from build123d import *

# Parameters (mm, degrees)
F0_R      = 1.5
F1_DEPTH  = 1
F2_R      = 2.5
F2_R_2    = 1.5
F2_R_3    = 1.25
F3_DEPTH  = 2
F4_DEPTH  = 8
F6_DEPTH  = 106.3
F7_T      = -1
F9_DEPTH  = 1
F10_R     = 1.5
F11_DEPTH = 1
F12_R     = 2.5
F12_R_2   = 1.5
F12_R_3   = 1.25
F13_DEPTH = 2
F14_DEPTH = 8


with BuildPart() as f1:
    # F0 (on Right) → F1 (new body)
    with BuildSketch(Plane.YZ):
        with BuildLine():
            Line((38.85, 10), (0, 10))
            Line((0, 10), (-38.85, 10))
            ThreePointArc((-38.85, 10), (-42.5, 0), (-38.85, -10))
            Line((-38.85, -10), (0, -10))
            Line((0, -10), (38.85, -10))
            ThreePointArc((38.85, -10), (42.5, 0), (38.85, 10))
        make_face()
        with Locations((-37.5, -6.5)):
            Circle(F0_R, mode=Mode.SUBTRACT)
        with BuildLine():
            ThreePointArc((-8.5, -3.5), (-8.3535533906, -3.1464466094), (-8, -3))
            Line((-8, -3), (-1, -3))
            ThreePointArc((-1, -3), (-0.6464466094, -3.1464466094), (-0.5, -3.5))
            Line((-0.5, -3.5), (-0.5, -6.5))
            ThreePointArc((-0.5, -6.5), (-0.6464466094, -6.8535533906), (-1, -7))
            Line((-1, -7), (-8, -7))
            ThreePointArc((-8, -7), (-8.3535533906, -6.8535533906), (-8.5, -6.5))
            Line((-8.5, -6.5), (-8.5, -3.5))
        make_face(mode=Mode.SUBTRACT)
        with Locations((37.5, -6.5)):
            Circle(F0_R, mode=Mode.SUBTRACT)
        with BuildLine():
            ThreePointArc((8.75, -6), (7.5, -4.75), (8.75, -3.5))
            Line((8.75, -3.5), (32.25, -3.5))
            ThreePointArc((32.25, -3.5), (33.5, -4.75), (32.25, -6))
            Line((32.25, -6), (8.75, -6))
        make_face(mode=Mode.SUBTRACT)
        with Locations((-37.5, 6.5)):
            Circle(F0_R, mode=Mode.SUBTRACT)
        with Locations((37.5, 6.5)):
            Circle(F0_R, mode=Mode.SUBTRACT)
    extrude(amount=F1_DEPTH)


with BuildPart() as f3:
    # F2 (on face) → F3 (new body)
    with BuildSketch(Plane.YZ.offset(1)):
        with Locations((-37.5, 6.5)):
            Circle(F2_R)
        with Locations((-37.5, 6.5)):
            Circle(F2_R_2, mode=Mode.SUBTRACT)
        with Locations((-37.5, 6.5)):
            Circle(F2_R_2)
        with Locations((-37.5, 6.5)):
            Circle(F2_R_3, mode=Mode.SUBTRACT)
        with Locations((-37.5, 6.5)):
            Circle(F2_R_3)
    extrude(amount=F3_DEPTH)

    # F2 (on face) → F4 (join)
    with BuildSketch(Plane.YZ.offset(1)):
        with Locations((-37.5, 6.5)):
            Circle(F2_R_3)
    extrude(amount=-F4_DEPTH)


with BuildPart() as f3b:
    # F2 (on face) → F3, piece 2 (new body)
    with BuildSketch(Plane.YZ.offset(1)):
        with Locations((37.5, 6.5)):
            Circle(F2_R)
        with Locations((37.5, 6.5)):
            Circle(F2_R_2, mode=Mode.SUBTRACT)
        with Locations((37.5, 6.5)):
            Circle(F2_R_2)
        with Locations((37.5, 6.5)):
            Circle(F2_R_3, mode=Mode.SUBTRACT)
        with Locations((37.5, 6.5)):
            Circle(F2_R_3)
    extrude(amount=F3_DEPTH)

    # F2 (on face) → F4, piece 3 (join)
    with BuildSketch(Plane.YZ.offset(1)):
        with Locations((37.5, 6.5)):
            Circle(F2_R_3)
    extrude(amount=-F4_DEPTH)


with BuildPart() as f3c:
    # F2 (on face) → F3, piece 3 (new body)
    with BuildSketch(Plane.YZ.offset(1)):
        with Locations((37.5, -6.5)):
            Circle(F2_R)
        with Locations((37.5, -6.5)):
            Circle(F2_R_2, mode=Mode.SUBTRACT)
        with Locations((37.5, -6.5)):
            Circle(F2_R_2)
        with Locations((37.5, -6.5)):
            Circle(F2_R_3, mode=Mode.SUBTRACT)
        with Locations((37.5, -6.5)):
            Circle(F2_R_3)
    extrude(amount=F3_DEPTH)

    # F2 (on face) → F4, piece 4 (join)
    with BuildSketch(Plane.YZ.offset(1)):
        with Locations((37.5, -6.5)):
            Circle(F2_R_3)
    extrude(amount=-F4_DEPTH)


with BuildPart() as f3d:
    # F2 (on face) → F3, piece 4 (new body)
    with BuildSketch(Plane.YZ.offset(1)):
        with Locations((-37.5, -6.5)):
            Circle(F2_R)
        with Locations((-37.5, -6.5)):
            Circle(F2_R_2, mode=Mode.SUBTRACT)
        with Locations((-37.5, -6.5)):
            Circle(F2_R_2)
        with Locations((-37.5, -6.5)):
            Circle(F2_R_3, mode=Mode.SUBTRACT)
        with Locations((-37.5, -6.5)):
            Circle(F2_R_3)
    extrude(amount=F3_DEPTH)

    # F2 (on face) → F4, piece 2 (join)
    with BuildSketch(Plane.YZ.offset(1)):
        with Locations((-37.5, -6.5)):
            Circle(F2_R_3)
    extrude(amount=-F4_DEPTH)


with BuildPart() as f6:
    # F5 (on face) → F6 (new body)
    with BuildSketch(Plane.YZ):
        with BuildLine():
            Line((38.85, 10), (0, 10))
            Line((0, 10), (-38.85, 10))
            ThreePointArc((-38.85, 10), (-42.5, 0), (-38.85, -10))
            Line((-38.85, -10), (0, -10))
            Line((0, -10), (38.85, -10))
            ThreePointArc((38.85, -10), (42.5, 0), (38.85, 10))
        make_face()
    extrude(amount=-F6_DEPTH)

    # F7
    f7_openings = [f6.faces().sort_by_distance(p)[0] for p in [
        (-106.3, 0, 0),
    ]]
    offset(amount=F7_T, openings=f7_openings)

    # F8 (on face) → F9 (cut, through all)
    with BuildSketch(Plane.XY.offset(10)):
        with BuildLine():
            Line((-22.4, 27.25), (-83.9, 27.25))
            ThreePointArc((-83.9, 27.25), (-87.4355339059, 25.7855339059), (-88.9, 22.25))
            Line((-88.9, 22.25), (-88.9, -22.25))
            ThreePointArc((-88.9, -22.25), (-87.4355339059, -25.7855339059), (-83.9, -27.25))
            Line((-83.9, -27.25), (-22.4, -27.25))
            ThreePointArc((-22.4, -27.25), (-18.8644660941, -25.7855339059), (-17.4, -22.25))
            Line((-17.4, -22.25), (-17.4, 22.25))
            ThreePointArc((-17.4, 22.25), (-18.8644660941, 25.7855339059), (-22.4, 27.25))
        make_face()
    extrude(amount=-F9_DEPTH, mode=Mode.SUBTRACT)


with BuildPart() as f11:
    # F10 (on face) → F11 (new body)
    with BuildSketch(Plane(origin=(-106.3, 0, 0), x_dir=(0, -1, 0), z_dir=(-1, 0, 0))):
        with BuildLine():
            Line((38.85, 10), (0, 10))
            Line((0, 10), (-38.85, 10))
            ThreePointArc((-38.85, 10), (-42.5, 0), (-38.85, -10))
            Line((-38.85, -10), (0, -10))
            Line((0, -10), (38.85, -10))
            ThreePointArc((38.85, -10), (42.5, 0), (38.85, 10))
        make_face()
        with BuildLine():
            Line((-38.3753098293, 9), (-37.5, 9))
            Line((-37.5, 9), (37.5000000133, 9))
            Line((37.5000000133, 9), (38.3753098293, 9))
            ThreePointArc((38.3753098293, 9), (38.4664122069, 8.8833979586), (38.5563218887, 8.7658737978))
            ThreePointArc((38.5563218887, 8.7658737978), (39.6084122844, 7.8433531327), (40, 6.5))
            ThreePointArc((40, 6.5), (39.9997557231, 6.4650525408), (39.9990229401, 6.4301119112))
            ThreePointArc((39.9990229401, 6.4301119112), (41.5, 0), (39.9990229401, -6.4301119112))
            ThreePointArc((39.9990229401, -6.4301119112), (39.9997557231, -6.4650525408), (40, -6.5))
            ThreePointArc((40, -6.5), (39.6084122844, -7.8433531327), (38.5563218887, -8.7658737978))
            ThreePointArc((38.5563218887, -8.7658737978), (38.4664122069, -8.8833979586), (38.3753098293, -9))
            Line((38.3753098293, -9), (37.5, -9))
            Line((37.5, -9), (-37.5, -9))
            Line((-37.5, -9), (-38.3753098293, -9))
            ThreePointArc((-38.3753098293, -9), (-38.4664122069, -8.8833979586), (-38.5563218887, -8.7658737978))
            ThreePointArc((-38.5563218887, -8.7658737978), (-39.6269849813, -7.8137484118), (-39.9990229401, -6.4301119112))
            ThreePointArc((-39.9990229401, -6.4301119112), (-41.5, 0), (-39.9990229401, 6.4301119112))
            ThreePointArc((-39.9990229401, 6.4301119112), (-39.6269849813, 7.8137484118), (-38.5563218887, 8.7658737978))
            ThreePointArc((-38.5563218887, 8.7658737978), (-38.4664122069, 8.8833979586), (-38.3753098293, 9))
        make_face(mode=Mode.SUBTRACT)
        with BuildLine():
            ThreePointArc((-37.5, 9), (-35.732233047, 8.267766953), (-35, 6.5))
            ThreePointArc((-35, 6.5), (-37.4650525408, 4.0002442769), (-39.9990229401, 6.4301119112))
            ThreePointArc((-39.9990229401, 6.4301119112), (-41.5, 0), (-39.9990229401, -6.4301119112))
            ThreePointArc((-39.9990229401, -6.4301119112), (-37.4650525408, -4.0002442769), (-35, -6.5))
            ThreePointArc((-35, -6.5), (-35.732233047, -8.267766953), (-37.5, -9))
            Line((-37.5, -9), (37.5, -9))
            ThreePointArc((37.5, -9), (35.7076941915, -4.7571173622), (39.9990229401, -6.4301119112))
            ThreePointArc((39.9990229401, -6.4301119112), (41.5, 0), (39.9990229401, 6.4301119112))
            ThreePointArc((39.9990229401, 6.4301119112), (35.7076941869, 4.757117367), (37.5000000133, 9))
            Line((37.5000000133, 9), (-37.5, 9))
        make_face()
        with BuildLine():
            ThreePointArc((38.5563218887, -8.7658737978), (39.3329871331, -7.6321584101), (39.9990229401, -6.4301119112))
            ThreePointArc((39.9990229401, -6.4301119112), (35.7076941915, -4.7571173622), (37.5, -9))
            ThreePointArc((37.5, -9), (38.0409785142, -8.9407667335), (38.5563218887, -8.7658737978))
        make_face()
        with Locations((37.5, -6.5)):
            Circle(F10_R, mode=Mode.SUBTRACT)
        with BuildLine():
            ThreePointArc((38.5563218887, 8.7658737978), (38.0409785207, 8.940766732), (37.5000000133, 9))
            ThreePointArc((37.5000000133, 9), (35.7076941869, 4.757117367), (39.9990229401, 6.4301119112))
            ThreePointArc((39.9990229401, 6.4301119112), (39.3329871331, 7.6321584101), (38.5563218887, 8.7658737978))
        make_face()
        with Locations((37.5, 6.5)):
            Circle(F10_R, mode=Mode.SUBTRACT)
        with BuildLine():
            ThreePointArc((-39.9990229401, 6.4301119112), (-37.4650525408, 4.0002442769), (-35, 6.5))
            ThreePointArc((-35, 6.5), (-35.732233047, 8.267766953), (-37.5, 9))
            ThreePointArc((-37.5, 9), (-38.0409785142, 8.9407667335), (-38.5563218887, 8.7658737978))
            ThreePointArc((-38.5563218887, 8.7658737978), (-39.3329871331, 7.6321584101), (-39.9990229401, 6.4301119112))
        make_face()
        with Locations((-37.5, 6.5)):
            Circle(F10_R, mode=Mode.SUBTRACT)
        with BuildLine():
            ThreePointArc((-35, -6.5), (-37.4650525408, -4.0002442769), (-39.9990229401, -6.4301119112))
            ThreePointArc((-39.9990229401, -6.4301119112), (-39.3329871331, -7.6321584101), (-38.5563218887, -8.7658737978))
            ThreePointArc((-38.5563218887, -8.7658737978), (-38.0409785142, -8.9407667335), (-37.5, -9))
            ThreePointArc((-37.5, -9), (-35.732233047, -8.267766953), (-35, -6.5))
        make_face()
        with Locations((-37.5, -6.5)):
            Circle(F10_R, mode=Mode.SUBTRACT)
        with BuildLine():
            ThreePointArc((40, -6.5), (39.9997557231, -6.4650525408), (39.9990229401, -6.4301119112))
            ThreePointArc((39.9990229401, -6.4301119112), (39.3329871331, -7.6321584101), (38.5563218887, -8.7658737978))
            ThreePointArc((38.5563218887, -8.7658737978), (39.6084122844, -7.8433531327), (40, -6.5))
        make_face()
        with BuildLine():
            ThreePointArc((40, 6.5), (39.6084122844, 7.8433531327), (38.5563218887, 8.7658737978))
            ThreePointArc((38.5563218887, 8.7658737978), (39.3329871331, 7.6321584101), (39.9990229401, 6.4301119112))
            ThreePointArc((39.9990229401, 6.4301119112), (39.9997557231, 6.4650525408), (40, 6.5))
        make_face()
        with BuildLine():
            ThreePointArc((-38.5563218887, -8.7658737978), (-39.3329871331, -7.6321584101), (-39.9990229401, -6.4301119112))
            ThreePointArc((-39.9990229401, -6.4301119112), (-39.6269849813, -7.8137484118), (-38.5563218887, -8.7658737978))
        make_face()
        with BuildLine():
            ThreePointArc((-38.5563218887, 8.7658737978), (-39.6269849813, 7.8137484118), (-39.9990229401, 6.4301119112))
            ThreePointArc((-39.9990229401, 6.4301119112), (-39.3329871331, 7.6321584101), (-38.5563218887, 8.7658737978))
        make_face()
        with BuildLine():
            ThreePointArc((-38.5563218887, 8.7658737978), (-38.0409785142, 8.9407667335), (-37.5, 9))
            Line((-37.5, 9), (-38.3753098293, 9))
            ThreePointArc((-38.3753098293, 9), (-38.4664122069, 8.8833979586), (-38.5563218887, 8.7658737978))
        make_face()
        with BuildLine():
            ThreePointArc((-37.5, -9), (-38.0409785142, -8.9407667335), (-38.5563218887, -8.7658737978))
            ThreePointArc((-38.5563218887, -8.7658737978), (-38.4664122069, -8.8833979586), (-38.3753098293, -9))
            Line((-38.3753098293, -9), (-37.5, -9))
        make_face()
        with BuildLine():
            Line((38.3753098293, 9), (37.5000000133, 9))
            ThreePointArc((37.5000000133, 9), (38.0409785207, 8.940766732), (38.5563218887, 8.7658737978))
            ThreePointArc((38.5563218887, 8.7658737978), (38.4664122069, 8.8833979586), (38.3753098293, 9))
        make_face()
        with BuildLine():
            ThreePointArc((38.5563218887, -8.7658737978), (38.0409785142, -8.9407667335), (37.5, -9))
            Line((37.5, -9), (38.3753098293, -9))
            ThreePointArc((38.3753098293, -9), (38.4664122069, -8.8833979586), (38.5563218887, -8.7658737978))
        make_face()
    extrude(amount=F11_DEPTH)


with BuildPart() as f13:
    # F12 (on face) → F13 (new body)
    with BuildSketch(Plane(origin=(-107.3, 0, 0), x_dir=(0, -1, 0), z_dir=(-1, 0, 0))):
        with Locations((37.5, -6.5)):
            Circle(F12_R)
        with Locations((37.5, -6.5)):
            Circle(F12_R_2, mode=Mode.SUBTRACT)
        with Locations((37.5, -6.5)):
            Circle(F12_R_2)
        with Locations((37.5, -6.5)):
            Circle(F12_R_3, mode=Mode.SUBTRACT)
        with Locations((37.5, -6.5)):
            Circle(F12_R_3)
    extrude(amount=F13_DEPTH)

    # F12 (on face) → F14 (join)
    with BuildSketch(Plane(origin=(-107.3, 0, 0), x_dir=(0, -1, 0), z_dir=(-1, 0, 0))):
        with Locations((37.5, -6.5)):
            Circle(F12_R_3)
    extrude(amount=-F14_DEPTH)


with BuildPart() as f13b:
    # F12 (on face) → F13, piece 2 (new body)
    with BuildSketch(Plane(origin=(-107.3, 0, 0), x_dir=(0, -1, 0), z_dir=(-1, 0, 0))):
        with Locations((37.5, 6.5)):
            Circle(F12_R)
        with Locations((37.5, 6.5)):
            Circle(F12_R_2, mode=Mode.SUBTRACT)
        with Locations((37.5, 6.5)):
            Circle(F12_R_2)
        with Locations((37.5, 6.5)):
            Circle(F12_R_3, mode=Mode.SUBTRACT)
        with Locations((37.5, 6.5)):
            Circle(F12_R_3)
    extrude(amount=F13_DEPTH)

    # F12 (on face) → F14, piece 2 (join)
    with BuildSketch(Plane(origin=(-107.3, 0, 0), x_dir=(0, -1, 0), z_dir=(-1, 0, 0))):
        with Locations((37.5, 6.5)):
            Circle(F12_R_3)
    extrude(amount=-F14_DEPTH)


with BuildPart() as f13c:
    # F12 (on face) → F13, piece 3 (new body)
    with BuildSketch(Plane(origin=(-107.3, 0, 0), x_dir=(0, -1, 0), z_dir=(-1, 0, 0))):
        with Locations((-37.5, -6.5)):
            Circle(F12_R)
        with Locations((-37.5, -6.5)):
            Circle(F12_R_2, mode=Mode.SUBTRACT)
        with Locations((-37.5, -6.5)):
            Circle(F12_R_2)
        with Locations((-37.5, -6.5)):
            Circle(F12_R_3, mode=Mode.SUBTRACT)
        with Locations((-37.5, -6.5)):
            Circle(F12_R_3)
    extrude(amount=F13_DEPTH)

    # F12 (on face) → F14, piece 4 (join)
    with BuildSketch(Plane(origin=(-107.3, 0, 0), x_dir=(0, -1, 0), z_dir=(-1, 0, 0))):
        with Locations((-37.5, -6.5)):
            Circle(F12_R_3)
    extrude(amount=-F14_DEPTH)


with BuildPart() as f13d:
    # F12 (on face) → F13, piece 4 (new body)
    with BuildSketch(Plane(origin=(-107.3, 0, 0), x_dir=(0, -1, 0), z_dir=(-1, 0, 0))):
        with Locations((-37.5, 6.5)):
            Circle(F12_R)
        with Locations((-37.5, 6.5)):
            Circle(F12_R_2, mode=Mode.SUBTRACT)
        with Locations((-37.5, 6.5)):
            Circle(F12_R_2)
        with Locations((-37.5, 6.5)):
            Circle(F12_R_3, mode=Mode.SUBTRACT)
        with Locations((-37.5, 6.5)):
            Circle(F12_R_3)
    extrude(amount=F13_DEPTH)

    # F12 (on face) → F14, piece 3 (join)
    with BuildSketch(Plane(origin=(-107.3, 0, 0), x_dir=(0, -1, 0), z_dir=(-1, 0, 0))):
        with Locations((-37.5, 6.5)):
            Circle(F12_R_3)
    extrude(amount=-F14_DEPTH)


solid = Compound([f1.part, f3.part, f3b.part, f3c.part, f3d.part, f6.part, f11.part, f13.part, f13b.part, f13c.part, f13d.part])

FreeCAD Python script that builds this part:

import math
import FreeCAD as App
import Part
import Sketcher
from FreeCAD import Vector
Q = App.Units.Quantity


def faces_at(feature, points):
    """Names of the faces that lie closest to the given points."""
    faces = feature.Shape.Faces
    near = lambda p: min(range(len(faces)), key=lambda i: faces[i].distToShape(Part.Vertex(*p))[0])
    return sorted({f"Face{near(p) + 1}" for p in points})

doc = App.newDocument("Part")
body = doc.addObject("PartDesign::Body", "Body")

# Sketch on YZ plane
sketch1 = doc.addObject("Sketcher::SketchObject", "Sketch")
body.addObject(sketch1)
sketch1.AttachmentSupport = (doc.YZ_Plane, [""])
sketch1.MapMode = "FlatFace"
sketch1.addGeometry([
    Part.LineSegment(Vector(38.85, 10, 0), Vector(-38.85, 10, 0)),  # 0
    Part.ArcOfCircle(Part.Circle(Vector(-26.97637, 0, 0), Vector(0, 0, 1), 15.52363), math.radians(139.895836), math.radians(220.104164)),  # 1
    Part.LineSegment(Vector(-38.85, -10, 0), Vector(38.85, -10, 0)),  # 2
    Part.ArcOfCircle(Part.Circle(Vector(26.97637, 0, 0), Vector(0, 0, 1), 15.52363), math.radians(-40.104164), math.radians(40.104164)),  # 3
    Part.Circle(Vector(-37.5, -6.5, 0), Vector(0, 0, 1), 1.5),  # 4
    Part.LineSegment(Vector(-8.5, -6.5, 0), Vector(-8.5, -3.5, 0)),  # 5
    Part.ArcOfCircle(Part.Circle(Vector(-8, -3.5, 0), Vector(0, 0, 1), 0.5), math.radians(90), math.radians(180)),  # 6
    Part.LineSegment(Vector(-8, -3, 0), Vector(-1, -3, 0)),  # 7
    Part.ArcOfCircle(Part.Circle(Vector(-1, -3.5, 0), Vector(0, 0, 1), 0.5), math.radians(0), math.radians(90)),  # 8
    Part.LineSegment(Vector(-0.5, -3.5, 0), Vector(-0.5, -6.5, 0)),  # 9
    Part.ArcOfCircle(Part.Circle(Vector(-1, -6.5, 0), Vector(0, 0, 1), 0.5), math.radians(-90), math.radians(0)),  # 10
    Part.LineSegment(Vector(-1, -7, 0), Vector(-8, -7, 0)),  # 11
    Part.ArcOfCircle(Part.Circle(Vector(-8, -6.5, 0), Vector(0, 0, 1), 0.5), math.radians(180), math.radians(270)),  # 12
    Part.Circle(Vector(37.5, -6.5, 0), Vector(0, 0, 1), 1.5),  # 13
    Part.LineSegment(Vector(32.25, -6, 0), Vector(8.75, -6, 0)),  # 14
    Part.ArcOfCircle(Part.Circle(Vector(8.75, -4.75, 0), Vector(0, 0, 1), 1.25), math.radians(90), math.radians(270)),  # 15
    Part.LineSegment(Vector(8.75, -3.5, 0), Vector(32.25, -3.5, 0)),  # 16
    Part.ArcOfCircle(Part.Circle(Vector(32.25, -4.75, 0), Vector(0, 0, 1), 1.25), math.radians(-90), math.radians(90)),  # 17
    Part.Circle(Vector(-37.5, 6.5, 0), Vector(0, 0, 1), 1.5),  # 18
    Part.Circle(Vector(37.5, 6.5, 0), Vector(0, 0, 1), 1.5),  # 19
], False)
sketch1.addConstraint([
    Sketcher.Constraint("Coincident", 0, 2, 1, 1),
    Sketcher.Constraint("Coincident", 1, 2, 2, 1),
    Sketcher.Constraint("Coincident", 2, 2, 3, 1),
    Sketcher.Constraint("Coincident", 3, 2, 0, 1),
    Sketcher.Constraint("Tangent", 5, 2, 6, 2),
    Sketcher.Constraint("Tangent", 6, 1, 7, 1),
    Sketcher.Constraint("Tangent", 7, 2, 8, 2),
    Sketcher.Constraint("Tangent", 8, 1, 9, 1),
    Sketcher.Constraint("Tangent", 9, 2, 10, 2),
    Sketcher.Constraint("Tangent", 10, 1, 11, 1),
    Sketcher.Constraint("Tangent", 11, 2, 12, 2),
    Sketcher.Constraint("Tangent", 12, 1, 5, 1),
    Sketcher.Constraint("Tangent", 14, 2, 15, 2),
    Sketcher.Constraint("Tangent", 15, 1, 16, 1),
    Sketcher.Constraint("Tangent", 16, 2, 17, 2),
    Sketcher.Constraint("Tangent", 17, 1, 14, 1),
    Sketcher.Constraint("Horizontal", 0),
    Sketcher.Constraint("Horizontal", 2),
    Sketcher.Constraint("Vertical", 5),
    Sketcher.Constraint("Horizontal", 7),
    Sketcher.Constraint("Vertical", 9),
    Sketcher.Constraint("Horizontal", 11),
    Sketcher.Constraint("Horizontal", 14),
    Sketcher.Constraint("Horizontal", 16),
    Sketcher.Constraint("Equal", 1, 3),
    Sketcher.Constraint("Equal", 6, 8),
    Sketcher.Constraint("Equal", 8, 10),
    Sketcher.Constraint("Equal", 10, 12),
    Sketcher.Constraint("Equal", 4, 13),
    Sketcher.Constraint("Equal", 13, 18),
    Sketcher.Constraint("Equal", 18, 19),
    Sketcher.Constraint("Symmetric", 1, 3, 3, 3, -1, 1),
    Sketcher.Constraint("Symmetric", 13, 3, 18, 3, -1, 1),
    Sketcher.Constraint("Symmetric", 4, 3, 19, 3, -1, 1),
    Sketcher.Constraint("Symmetric", 4, 3, 13, 3, -2),
    Sketcher.Constraint("Symmetric", 0, 2, 1, 2, -1),
    Sketcher.Constraint("Horizontal", 4, 3, 10, 3),
    Sketcher.Constraint("Horizontal", 8, 1, 15, 1),
    Sketcher.Constraint("Diameter", 4, Q("3 mm")),
    Sketcher.Constraint("Radius", 6, Q("0.5 mm")),
    Sketcher.Constraint("DistanceX", 7, 1, 7, 2, Q("7 mm")),
    Sketcher.Constraint("DistanceY", 5, 1, 5, 2, Q("3 mm")),
    Sketcher.Constraint("Radius", 15, Q("1.25 mm")),
    Sketcher.Constraint("DistanceX", 0, 2, 0, 1, Q("77.7 mm")),
    Sketcher.Constraint("DistanceX", 14, 2, 14, 1, Q("23.5 mm")),
    Sketcher.Constraint("DistanceX", 6, 3, -1, 1, Q("8 mm")),
    Sketcher.Constraint("DistanceY", -1, 1, 0, 2, Q("10 mm")),
    Sketcher.Constraint("DistanceY", 6, 1, -1, 1, Q("3 mm")),
    Sketcher.Constraint("DistanceX", 4, 3, -1, 1, Q("37.5 mm")),
    Sketcher.Constraint("DistanceX", 17, 3, 2, 2, Q("6.6 mm")),
    Sketcher.Constraint("Radius", 1, Q("15.52363 mm")),
])
pad1 = doc.addObject("PartDesign::Pad", "Pad")
body.addObject(pad1)
pad1.Profile = sketch1
pad1.Length = 1
body2 = doc.addObject("PartDesign::Body", "Body001")

# Sketch on YZ plane
sketch2 = doc.addObject("Sketcher::SketchObject", "Sketch001")
body2.addObject(sketch2)
sketch2.AttachmentSupport = (doc.getObject("YZ_Plane001"), [""])
sketch2.MapMode = "FlatFace"
sketch2.AttachmentOffset = App.Placement(Vector(0, 0, 1), App.Rotation())
sketch2.addGeometry(Part.Circle(Vector(-37.5, 6.5, 0), Vector(0, 0, 1), 2.5), False)
sketch2.addConstraint([
    Sketcher.Constraint("Diameter", 0, Q("5 mm")),
    Sketcher.Constraint("DistanceX", 0, 3, -1, 1, Q("37.5 mm")),
    Sketcher.Constraint("DistanceY", -1, 1, 0, 3, Q("6.5 mm")),
])
pad2 = doc.addObject("PartDesign::Pad", "Pad001")
body2.addObject(pad2)
pad2.Profile = sketch2
pad2.Length = 2

# Sketch on YZ plane
sketch3 = doc.addObject("Sketcher::SketchObject", "Sketch002")
body2.addObject(sketch3)
sketch3.AttachmentSupport = (doc.getObject("YZ_Plane001"), [""])
sketch3.MapMode = "FlatFace"
sketch3.AttachmentOffset = App.Placement(Vector(0, 0, 1), App.Rotation())
sketch3.addGeometry(Part.Circle(Vector(-37.5, 6.5, 0), Vector(0, 0, 1), 1.25), False)
sketch3.addConstraint([
    Sketcher.Constraint("Diameter", 0, Q("2.5 mm")),
    Sketcher.Constraint("DistanceX", 0, 3, -1, 1, Q("37.5 mm")),
    Sketcher.Constraint("DistanceY", -1, 1, 0, 3, Q("6.5 mm")),
])
pad3 = doc.addObject("PartDesign::Pad", "Pad002")
body2.addObject(pad3)
pad3.Profile = sketch3
pad3.Length = 8
pad3.Reversed = True
body3 = doc.addObject("PartDesign::Body", "Body002")

# Sketch on YZ plane
sketch4 = doc.addObject("Sketcher::SketchObject", "Sketch003")
body3.addObject(sketch4)
sketch4.AttachmentSupport = (doc.getObject("YZ_Plane002"), [""])
sketch4.MapMode = "FlatFace"
sketch4.AttachmentOffset = App.Placement(Vector(0, 0, 1), App.Rotation())
sketch4.addGeometry(Part.Circle(Vector(37.5, 6.5, 0), Vector(0, 0, 1), 2.5), False)
sketch4.addConstraint([
    Sketcher.Constraint("Diameter", 0, Q("5 mm")),
    Sketcher.Constraint("DistanceX", -1, 1, 0, 3, Q("37.5 mm")),
    Sketcher.Constraint("DistanceY", -1, 1, 0, 3, Q("6.5 mm")),
])
pad4 = doc.addObject("PartDesign::Pad", "Pad003")
body3.addObject(pad4)
pad4.Profile = sketch4
pad4.Length = 2

# Sketch on YZ plane
sketch5 = doc.addObject("Sketcher::SketchObject", "Sketch004")
body3.addObject(sketch5)
sketch5.AttachmentSupport = (doc.getObject("YZ_Plane002"), [""])
sketch5.MapMode = "FlatFace"
sketch5.AttachmentOffset = App.Placement(Vector(0, 0, 1), App.Rotation())
sketch5.addGeometry(Part.Circle(Vector(37.5, 6.5, 0), Vector(0, 0, 1), 1.25), False)
sketch5.addConstraint([
    Sketcher.Constraint("Diameter", 0, Q("2.5 mm")),
    Sketcher.Constraint("DistanceX", -1, 1, 0, 3, Q("37.5 mm")),
    Sketcher.Constraint("DistanceY", -1, 1, 0, 3, Q("6.5 mm")),
])
pad5 = doc.addObject("PartDesign::Pad", "Pad004")
body3.addObject(pad5)
pad5.Profile = sketch5
pad5.Length = 8
pad5.Reversed = True
body4 = doc.addObject("PartDesign::Body", "Body003")

# Sketch on YZ plane
sketch6 = doc.addObject("Sketcher::SketchObject", "Sketch005")
body4.addObject(sketch6)
sketch6.AttachmentSupport = (doc.getObject("YZ_Plane003"), [""])
sketch6.MapMode = "FlatFace"
sketch6.AttachmentOffset = App.Placement(Vector(0, 0, 1), App.Rotation())
sketch6.addGeometry(Part.Circle(Vector(37.5, -6.5, 0), Vector(0, 0, 1), 2.5), False)
sketch6.addConstraint([
    Sketcher.Constraint("Diameter", 0, Q("5 mm")),
    Sketcher.Constraint("DistanceX", -1, 1, 0, 3, Q("37.5 mm")),
    Sketcher.Constraint("DistanceY", 0, 3, -1, 1, Q("6.5 mm")),
])
pad6 = doc.addObject("PartDesign::Pad", "Pad005")
body4.addObject(pad6)
pad6.Profile = sketch6
pad6.Length = 2

# Sketch on YZ plane
sketch7 = doc.addObject("Sketcher::SketchObject", "Sketch006")
body4.addObject(sketch7)
sketch7.AttachmentSupport = (doc.getObject("YZ_Plane003"), [""])
sketch7.MapMode = "FlatFace"
sketch7.AttachmentOffset = App.Placement(Vector(0, 0, 1), App.Rotation())
sketch7.addGeometry(Part.Circle(Vector(37.5, -6.5, 0), Vector(0, 0, 1), 1.25), False)
sketch7.addConstraint([
    Sketcher.Constraint("Diameter", 0, Q("2.5 mm")),
    Sketcher.Constraint("DistanceX", -1, 1, 0, 3, Q("37.5 mm")),
    Sketcher.Constraint("DistanceY", 0, 3, -1, 1, Q("6.5 mm")),
])
pad7 = doc.addObject("PartDesign::Pad", "Pad006")
body4.addObject(pad7)
pad7.Profile = sketch7
pad7.Length = 8
pad7.Reversed = True
body5 = doc.addObject("PartDesign::Body", "Body004")

# Sketch on YZ plane
sketch8 = doc.addObject("Sketcher::SketchObject", "Sketch007")
body5.addObject(sketch8)
sketch8.AttachmentSupport = (doc.getObject("YZ_Plane004"), [""])
sketch8.MapMode = "FlatFace"
sketch8.AttachmentOffset = App.Placement(Vector(0, 0, 1), App.Rotation())
sketch8.addGeometry(Part.Circle(Vector(-37.5, -6.5, 0), Vector(0, 0, 1), 2.5), False)
sketch8.addConstraint([
    Sketcher.Constraint("Diameter", 0, Q("5 mm")),
    Sketcher.Constraint("DistanceX", 0, 3, -1, 1, Q("37.5 mm")),
    Sketcher.Constraint("DistanceY", 0, 3, -1, 1, Q("6.5 mm")),
])
pad8 = doc.addObject("PartDesign::Pad", "Pad007")
body5.addObject(pad8)
pad8.Profile = sketch8
pad8.Length = 2

# Sketch on YZ plane
sketch9 = doc.addObject("Sketcher::SketchObject", "Sketch008")
body5.addObject(sketch9)
sketch9.AttachmentSupport = (doc.getObject("YZ_Plane004"), [""])
sketch9.MapMode = "FlatFace"
sketch9.AttachmentOffset = App.Placement(Vector(0, 0, 1), App.Rotation())
sketch9.addGeometry(Part.Circle(Vector(-37.5, -6.5, 0), Vector(0, 0, 1), 1.25), False)
sketch9.addConstraint([
    Sketcher.Constraint("Diameter", 0, Q("2.5 mm")),
    Sketcher.Constraint("DistanceX", 0, 3, -1, 1, Q("37.5 mm")),
    Sketcher.Constraint("DistanceY", 0, 3, -1, 1, Q("6.5 mm")),
])
pad9 = doc.addObject("PartDesign::Pad", "Pad008")
body5.addObject(pad9)
pad9.Profile = sketch9
pad9.Length = 8
pad9.Reversed = True
body6 = doc.addObject("PartDesign::Body", "Body005")

# Sketch on YZ plane
sketch10 = doc.addObject("Sketcher::SketchObject", "Sketch009")
body6.addObject(sketch10)
sketch10.AttachmentSupport = (doc.getObject("YZ_Plane005"), [""])
sketch10.MapMode = "FlatFace"
sketch10.addGeometry([
    Part.LineSegment(Vector(38.85, 10, 0), Vector(-38.85, 10, 0)),
    Part.ArcOfCircle(Part.Circle(Vector(-26.97637, 0, 0), Vector(0, 0, 1), 15.52363), math.radians(139.895836), math.radians(220.104164)),
    Part.LineSegment(Vector(-38.85, -10, 0), Vector(38.85, -10, 0)),
    Part.ArcOfCircle(Part.Circle(Vector(26.97637, 0, 0), Vector(0, 0, 1), 15.52363), math.radians(-40.104164), math.radians(40.104164)),
], False)
sketch10.addConstraint([
    Sketcher.Constraint("Coincident", 0, 2, 1, 1),
    Sketcher.Constraint("Coincident", 1, 2, 2, 1),
    Sketcher.Constraint("Coincident", 2, 2, 3, 1),
    Sketcher.Constraint("Coincident", 3, 2, 0, 1),
    Sketcher.Constraint("Horizontal", 0),
    Sketcher.Constraint("Horizontal", 2),
    Sketcher.Constraint("Equal", 1, 3),
    Sketcher.Constraint("Symmetric", 1, 3, 3, 3, -1, 1),
    Sketcher.Constraint("Symmetric", 0, 2, 1, 2, -1),
    Sketcher.Constraint("DistanceX", 0, 2, 0, 1, Q("77.7 mm")),
    Sketcher.Constraint("DistanceY", -1, 1, 0, 2, Q("10 mm")),
    Sketcher.Constraint("Radius", 1, Q("15.52363 mm")),
])
pad10 = doc.addObject("PartDesign::Pad", "Pad009")
body6.addObject(pad10)
pad10.Profile = sketch10
pad10.Length = 106.3
pad10.Reversed = True
doc.recompute()

thickness = doc.addObject("PartDesign::Thickness", "Thickness")
body6.addObject(thickness)
thickness.Base = (pad10, faces_at(pad10, [(-106.3, 0, 0)]))
thickness.Value = 1
thickness.Reversed = True
thickness.Join = "Arc"

# Sketch on XY plane
sketch11 = doc.addObject("Sketcher::SketchObject", "Sketch010")
body6.addObject(sketch11)
sketch11.AttachmentSupport = (doc.getObject("XY_Plane005"), [""])
sketch11.MapMode = "FlatFace"
sketch11.AttachmentOffset = App.Placement(Vector(0, 0, 10), App.Rotation())
sketch11.addGeometry([
    Part.LineSegment(Vector(-22.4, 27.25, 0), Vector(-83.9, 27.25, 0)),  # 0
    Part.ArcOfCircle(Part.Circle(Vector(-83.9, 22.25, 0), Vector(0, 0, 1), 5), math.radians(90), math.radians(180)),  # 1
    Part.LineSegment(Vector(-88.9, 22.25, 0), Vector(-88.9, -22.25, 0)),  # 2
    Part.ArcOfCircle(Part.Circle(Vector(-83.9, -22.25, 0), Vector(0, 0, 1), 5), math.radians(180), math.radians(270)),  # 3
    Part.LineSegment(Vector(-83.9, -27.25, 0), Vector(-22.4, -27.25, 0)),  # 4
    Part.ArcOfCircle(Part.Circle(Vector(-22.4, -22.25, 0), Vector(0, 0, 1), 5), math.radians(-90), math.radians(0)),  # 5
    Part.LineSegment(Vector(-17.4, -22.25, 0), Vector(-17.4, 22.25, 0)),  # 6
    Part.ArcOfCircle(Part.Circle(Vector(-22.4, 22.25, 0), Vector(0, 0, 1), 5), math.radians(0), math.radians(90)),  # 7
], False)
sketch11.addConstraint([
    Sketcher.Constraint("Tangent", 0, 2, 1, 1),
    Sketcher.Constraint("Tangent", 1, 2, 2, 1),
    Sketcher.Constraint("Tangent", 2, 2, 3, 1),
    Sketcher.Constraint("Tangent", 3, 2, 4, 1),
    Sketcher.Constraint("Tangent", 4, 2, 5, 1),
    Sketcher.Constraint("Tangent", 5, 2, 6, 1),
    Sketcher.Constraint("Tangent", 6, 2, 7, 1),
    Sketcher.Constraint("Tangent", 7, 2, 0, 1),
    Sketcher.Constraint("Horizontal", 0),
    Sketcher.Constraint("Vertical", 2),
    Sketcher.Constraint("Horizontal", 4),
    Sketcher.Constraint("Vertical", 6),
    Sketcher.Constraint("Equal", 1, 3),
    Sketcher.Constraint("Equal", 3, 5),
    Sketcher.Constraint("Equal", 5, 7),
    Sketcher.Constraint("Radius", 1, Q("5 mm")),
    Sketcher.Constraint("DistanceX", 0, 2, 0, 1, Q("61.5 mm")),
    Sketcher.Constraint("DistanceY", 2, 2, 2, 1, Q("44.5 mm")),
    Sketcher.Constraint("DistanceX", 1, 3, -1, 1, Q("83.9 mm")),
    Sketcher.Constraint("DistanceY", -1, 1, 1, 3, Q("22.25 mm")),
])
pocket1 = doc.addObject("PartDesign::Pocket", "Pocket")
body6.addObject(pocket1)
pocket1.Profile = sketch11
pocket1.Length = 1
body7 = doc.addObject("PartDesign::Body", "Body006")

# Sketch on YZ plane
sketch12 = doc.addObject("Sketcher::SketchObject", "Sketch011")
body7.addObject(sketch12)
sketch12.AttachmentSupport = (doc.getObject("YZ_Plane006"), [""])
sketch12.MapMode = "FlatFace"
sketch12.AttachmentOffset = App.Placement(Vector(0, 0, -106.3), App.Rotation())
sketch12.addGeometry([
    Part.LineSegment(Vector(-38.85, 10, 0), Vector(38.85, 10, 0)),  # 0
    Part.ArcOfCircle(Part.Circle(Vector(26.97637, 0, 0), Vector(0, 0, 1), 15.52363), math.radians(-40.104164), math.radians(40.104164)),  # 1
    Part.LineSegment(Vector(38.85, -10, 0), Vector(-38.85, -10, 0)),  # 2
    Part.ArcOfCircle(Part.Circle(Vector(-26.97637, 0, 0), Vector(0, 0, 1), 15.52363), math.radians(139.895836), math.radians(220.104164)),  # 3
    Part.Circle(Vector(37.5, -6.5, 0), Vector(0, 0, 1), 1.5),  # 4
    Part.Circle(Vector(-37.5, -6.5, 0), Vector(0, 0, 1), 1.5),  # 5
    Part.Circle(Vector(37.5, 6.5, 0), Vector(0, 0, 1), 1.5),  # 6
    Part.Circle(Vector(-37.5, 6.5, 0), Vector(0, 0, 1), 1.5),  # 7
], False)
sketch12.addConstraint([
    Sketcher.Constraint("Coincident", 0, 2, 1, 2),
    Sketcher.Constraint("Coincident", 1, 1, 2, 1),
    Sketcher.Constraint("Coincident", 2, 2, 3, 2),
    Sketcher.Constraint("Coincident", 3, 1, 0, 1),
    Sketcher.Constraint("Horizontal", 0),
    Sketcher.Constraint("Horizontal", 2),
    Sketcher.Constraint("Equal", 1, 3),
    Sketcher.Constraint("Equal", 4, 5),
    Sketcher.Constraint("Equal", 5, 6),
    Sketcher.Constraint("Equal", 6, 7),
    Sketcher.Constraint("Symmetric", 1, 3, 3, 3, -1, 1),
    Sketcher.Constraint("Symmetric", 5, 3, 6, 3, -1, 1),
    Sketcher.Constraint("Symmetric", 4, 3, 7, 3, -1, 1),
    Sketcher.Constraint("Symmetric", 4, 3, 5, 3, -2),
    Sketcher.Constraint("Symmetric", 0, 2, 1, 1, -1),
    Sketcher.Constraint("Diameter", 4, Q("3 mm")),
    Sketcher.Constraint("DistanceX", 0, 1, 0, 2, Q("77.7 mm")),
    Sketcher.Constraint("DistanceY", -1, 1, 0, 2, Q("10 mm")),
    Sketcher.Constraint("DistanceX", 5, 3, 4, 3, Q("75 mm")),
    Sketcher.Constraint("DistanceY", 4, 3, 6, 3, Q("13 mm")),
    Sketcher.Constraint("Radius", 1, Q("15.52363 mm")),
])
pad11 = doc.addObject("PartDesign::Pad", "Pad010")
body7.addObject(pad11)
pad11.Profile = sketch12
pad11.Length = 1
pad11.Reversed = True
body8 = doc.addObject("PartDesign::Body", "Body007")

# Sketch on YZ plane
sketch13 = doc.addObject("Sketcher::SketchObject", "Sketch012")
body8.addObject(sketch13)
sketch13.AttachmentSupport = (doc.getObject("YZ_Plane007"), [""])
sketch13.MapMode = "FlatFace"
sketch13.AttachmentOffset = App.Placement(Vector(0, 0, -107.3), App.Rotation())
sketch13.addGeometry(Part.Circle(Vector(-37.5, -6.5, 0), Vector(0, 0, 1), 2.5), False)
sketch13.addConstraint([
    Sketcher.Constraint("Diameter", 0, Q("5 mm")),
    Sketcher.Constraint("DistanceX", 0, 3, -1, 1, Q("37.5 mm")),
    Sketcher.Constraint("DistanceY", 0, 3, -1, 1, Q("6.5 mm")),
])
pad12 = doc.addObject("PartDesign::Pad", "Pad011")
body8.addObject(pad12)
pad12.Profile = sketch13
pad12.Length = 2
pad12.Reversed = True

# Sketch on YZ plane
sketch14 = doc.addObject("Sketcher::SketchObject", "Sketch013")
body8.addObject(sketch14)
sketch14.AttachmentSupport = (doc.getObject("YZ_Plane007"), [""])
sketch14.MapMode = "FlatFace"
sketch14.AttachmentOffset = App.Placement(Vector(0, 0, -107.3), App.Rotation())
sketch14.addGeometry(Part.Circle(Vector(-37.5, -6.5, 0), Vector(0, 0, 1), 1.25), False)
sketch14.addConstraint([
    Sketcher.Constraint("Diameter", 0, Q("2.5 mm")),
    Sketcher.Constraint("DistanceX", 0, 3, -1, 1, Q("37.5 mm")),
    Sketcher.Constraint("DistanceY", 0, 3, -1, 1, Q("6.5 mm")),
])
pad13 = doc.addObject("PartDesign::Pad", "Pad012")
body8.addObject(pad13)
pad13.Profile = sketch14
pad13.Length = 8
body9 = doc.addObject("PartDesign::Body", "Body008")

# Sketch on YZ plane
sketch15 = doc.addObject("Sketcher::SketchObject", "Sketch014")
body9.addObject(sketch15)
sketch15.AttachmentSupport = (doc.getObject("YZ_Plane008"), [""])
sketch15.MapMode = "FlatFace"
sketch15.AttachmentOffset = App.Placement(Vector(0, 0, -107.3), App.Rotation())
sketch15.addGeometry(Part.Circle(Vector(-37.5, 6.5, 0), Vector(0, 0, 1), 2.5), False)
sketch15.addConstraint([
    Sketcher.Constraint("Diameter", 0, Q("5 mm")),
    Sketcher.Constraint("DistanceX", 0, 3, -1, 1, Q("37.5 mm")),
    Sketcher.Constraint("DistanceY", -1, 1, 0, 3, Q("6.5 mm")),
])
pad14 = doc.addObject("PartDesign::Pad", "Pad013")
body9.addObject(pad14)
pad14.Profile = sketch15
pad14.Length = 2
pad14.Reversed = True

# Sketch on YZ plane
sketch16 = doc.addObject("Sketcher::SketchObject", "Sketch015")
body9.addObject(sketch16)
sketch16.AttachmentSupport = (doc.getObject("YZ_Plane008"), [""])
sketch16.MapMode = "FlatFace"
sketch16.AttachmentOffset = App.Placement(Vector(0, 0, -107.3), App.Rotation())
sketch16.addGeometry(Part.Circle(Vector(-37.5, 6.5, 0), Vector(0, 0, 1), 1.25), False)
sketch16.addConstraint([
    Sketcher.Constraint("Diameter", 0, Q("2.5 mm")),
    Sketcher.Constraint("DistanceX", 0, 3, -1, 1, Q("37.5 mm")),
    Sketcher.Constraint("DistanceY", -1, 1, 0, 3, Q("6.5 mm")),
])
pad15 = doc.addObject("PartDesign::Pad", "Pad014")
body9.addObject(pad15)
pad15.Profile = sketch16
pad15.Length = 8
body10 = doc.addObject("PartDesign::Body", "Body009")

# Sketch on YZ plane
sketch17 = doc.addObject("Sketcher::SketchObject", "Sketch016")
body10.addObject(sketch17)
sketch17.AttachmentSupport = (doc.getObject("YZ_Plane009"), [""])
sketch17.MapMode = "FlatFace"
sketch17.AttachmentOffset = App.Placement(Vector(0, 0, -107.3), App.Rotation())
sketch17.addGeometry(Part.Circle(Vector(37.5, -6.5, 0), Vector(0, 0, 1), 2.5), False)
sketch17.addConstraint([
    Sketcher.Constraint("Diameter", 0, Q("5 mm")),
    Sketcher.Constraint("DistanceX", -1, 1, 0, 3, Q("37.5 mm")),
    Sketcher.Constraint("DistanceY", 0, 3, -1, 1, Q("6.5 mm")),
])
pad16 = doc.addObject("PartDesign::Pad", "Pad015")
body10.addObject(pad16)
pad16.Profile = sketch17
pad16.Length = 2
pad16.Reversed = True

# Sketch on YZ plane
sketch18 = doc.addObject("Sketcher::SketchObject", "Sketch017")
body10.addObject(sketch18)
sketch18.AttachmentSupport = (doc.getObject("YZ_Plane009"), [""])
sketch18.MapMode = "FlatFace"
sketch18.AttachmentOffset = App.Placement(Vector(0, 0, -107.3), App.Rotation())
sketch18.addGeometry(Part.Circle(Vector(37.5, -6.5, 0), Vector(0, 0, 1), 1.25), False)
sketch18.addConstraint([
    Sketcher.Constraint("Diameter", 0, Q("2.5 mm")),
    Sketcher.Constraint("DistanceX", -1, 1, 0, 3, Q("37.5 mm")),
    Sketcher.Constraint("DistanceY", 0, 3, -1, 1, Q("6.5 mm")),
])
pad17 = doc.addObject("PartDesign::Pad", "Pad016")
body10.addObject(pad17)
pad17.Profile = sketch18
pad17.Length = 8
body11 = doc.addObject("PartDesign::Body", "Body010")

# Sketch on YZ plane
sketch19 = doc.addObject("Sketcher::SketchObject", "Sketch018")
body11.addObject(sketch19)
sketch19.AttachmentSupport = (doc.getObject("YZ_Plane010"), [""])
sketch19.MapMode = "FlatFace"
sketch19.AttachmentOffset = App.Placement(Vector(0, 0, -107.3), App.Rotation())
sketch19.addGeometry(Part.Circle(Vector(37.5, 6.5, 0), Vector(0, 0, 1), 2.5), False)
sketch19.addConstraint([
    Sketcher.Constraint("Diameter", 0, Q("5 mm")),
    Sketcher.Constraint("DistanceX", -1, 1, 0, 3, Q("37.5 mm")),
    Sketcher.Constraint("DistanceY", -1, 1, 0, 3, Q("6.5 mm")),
])
pad18 = doc.addObject("PartDesign::Pad", "Pad017")
body11.addObject(pad18)
pad18.Profile = sketch19
pad18.Length = 2
pad18.Reversed = True

# Sketch on YZ plane
sketch20 = doc.addObject("Sketcher::SketchObject", "Sketch019")
body11.addObject(sketch20)
sketch20.AttachmentSupport = (doc.getObject("YZ_Plane010"), [""])
sketch20.MapMode = "FlatFace"
sketch20.AttachmentOffset = App.Placement(Vector(0, 0, -107.3), App.Rotation())
sketch20.addGeometry(Part.Circle(Vector(37.5, 6.5, 0), Vector(0, 0, 1), 1.25), False)
sketch20.addConstraint([
    Sketcher.Constraint("Diameter", 0, Q("2.5 mm")),
    Sketcher.Constraint("DistanceX", -1, 1, 0, 3, Q("37.5 mm")),
    Sketcher.Constraint("DistanceY", -1, 1, 0, 3, Q("6.5 mm")),
])
pad19 = doc.addObject("PartDesign::Pad", "Pad018")
body11.addObject(pad19)
pad19.Profile = sketch20
pad19.Length = 8

doc.recompute()
